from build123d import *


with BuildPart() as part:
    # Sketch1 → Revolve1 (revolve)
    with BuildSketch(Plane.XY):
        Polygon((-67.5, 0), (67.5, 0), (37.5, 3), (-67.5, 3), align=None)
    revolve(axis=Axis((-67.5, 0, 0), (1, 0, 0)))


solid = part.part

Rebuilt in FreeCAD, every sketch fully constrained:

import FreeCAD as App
import Part
import Sketcher
from FreeCAD import Vector
Q = App.Units.Quantity


def add_polygon(sketch, points):
    """Adds a closed chain of lines whose ends are joined by coincident constraints."""
    first, n = sketch.GeometryCount, len(points)
    for a, b in zip(points, points[1:] + points[:1]):
        sketch.addGeometry(Part.LineSegment(App.Vector(*a, 0), App.Vector(*b, 0)), False)
    for i in range(n):
        sketch.addConstraint(Sketcher.Constraint("Coincident", first + i, 2, first + (i + 1) % n, 1))

doc = App.newDocument("Part")
body = doc.addObject("PartDesign::Body", "Body")

sketch1 = doc.addObject("Sketcher::SketchObject", "Sketch")
body.addObject(sketch1)
sketch1.AttachmentSupport = (doc.XY_Plane, [""])
sketch1.MapMode = "FlatFace"
add_polygon(sketch1, [(-67.5, 0), (67.5, 0), (37.5, 3), (-67.5, 3)])
sketch1.addConstraint([
    Sketcher.Constraint("Horizontal", 0),
    Sketcher.Constraint("Horizontal", 2),
    Sketcher.Constraint("Vertical", 3),
    Sketcher.Constraint("Symmetric", 0, 2, 3, 2, -1, 1),
    Sketcher.Constraint("DistanceX", 0, 1, 0, 2, Q("135 mm")),
    Sketcher.Constraint("DistanceX", 2, 2, 2, 1, Q("105 mm")),
    Sketcher.Constraint("DistanceY", 3, 2, 3, 1, Q("3 mm")),
])
revolution = doc.addObject("PartDesign::Revolution", "Revolution")
body.addObject(revolution)
revolution.Profile = sketch1
revolution.ReferenceAxis = (sketch1, ["H_Axis"])
revolution.Angle = 360

doc.recompute()
